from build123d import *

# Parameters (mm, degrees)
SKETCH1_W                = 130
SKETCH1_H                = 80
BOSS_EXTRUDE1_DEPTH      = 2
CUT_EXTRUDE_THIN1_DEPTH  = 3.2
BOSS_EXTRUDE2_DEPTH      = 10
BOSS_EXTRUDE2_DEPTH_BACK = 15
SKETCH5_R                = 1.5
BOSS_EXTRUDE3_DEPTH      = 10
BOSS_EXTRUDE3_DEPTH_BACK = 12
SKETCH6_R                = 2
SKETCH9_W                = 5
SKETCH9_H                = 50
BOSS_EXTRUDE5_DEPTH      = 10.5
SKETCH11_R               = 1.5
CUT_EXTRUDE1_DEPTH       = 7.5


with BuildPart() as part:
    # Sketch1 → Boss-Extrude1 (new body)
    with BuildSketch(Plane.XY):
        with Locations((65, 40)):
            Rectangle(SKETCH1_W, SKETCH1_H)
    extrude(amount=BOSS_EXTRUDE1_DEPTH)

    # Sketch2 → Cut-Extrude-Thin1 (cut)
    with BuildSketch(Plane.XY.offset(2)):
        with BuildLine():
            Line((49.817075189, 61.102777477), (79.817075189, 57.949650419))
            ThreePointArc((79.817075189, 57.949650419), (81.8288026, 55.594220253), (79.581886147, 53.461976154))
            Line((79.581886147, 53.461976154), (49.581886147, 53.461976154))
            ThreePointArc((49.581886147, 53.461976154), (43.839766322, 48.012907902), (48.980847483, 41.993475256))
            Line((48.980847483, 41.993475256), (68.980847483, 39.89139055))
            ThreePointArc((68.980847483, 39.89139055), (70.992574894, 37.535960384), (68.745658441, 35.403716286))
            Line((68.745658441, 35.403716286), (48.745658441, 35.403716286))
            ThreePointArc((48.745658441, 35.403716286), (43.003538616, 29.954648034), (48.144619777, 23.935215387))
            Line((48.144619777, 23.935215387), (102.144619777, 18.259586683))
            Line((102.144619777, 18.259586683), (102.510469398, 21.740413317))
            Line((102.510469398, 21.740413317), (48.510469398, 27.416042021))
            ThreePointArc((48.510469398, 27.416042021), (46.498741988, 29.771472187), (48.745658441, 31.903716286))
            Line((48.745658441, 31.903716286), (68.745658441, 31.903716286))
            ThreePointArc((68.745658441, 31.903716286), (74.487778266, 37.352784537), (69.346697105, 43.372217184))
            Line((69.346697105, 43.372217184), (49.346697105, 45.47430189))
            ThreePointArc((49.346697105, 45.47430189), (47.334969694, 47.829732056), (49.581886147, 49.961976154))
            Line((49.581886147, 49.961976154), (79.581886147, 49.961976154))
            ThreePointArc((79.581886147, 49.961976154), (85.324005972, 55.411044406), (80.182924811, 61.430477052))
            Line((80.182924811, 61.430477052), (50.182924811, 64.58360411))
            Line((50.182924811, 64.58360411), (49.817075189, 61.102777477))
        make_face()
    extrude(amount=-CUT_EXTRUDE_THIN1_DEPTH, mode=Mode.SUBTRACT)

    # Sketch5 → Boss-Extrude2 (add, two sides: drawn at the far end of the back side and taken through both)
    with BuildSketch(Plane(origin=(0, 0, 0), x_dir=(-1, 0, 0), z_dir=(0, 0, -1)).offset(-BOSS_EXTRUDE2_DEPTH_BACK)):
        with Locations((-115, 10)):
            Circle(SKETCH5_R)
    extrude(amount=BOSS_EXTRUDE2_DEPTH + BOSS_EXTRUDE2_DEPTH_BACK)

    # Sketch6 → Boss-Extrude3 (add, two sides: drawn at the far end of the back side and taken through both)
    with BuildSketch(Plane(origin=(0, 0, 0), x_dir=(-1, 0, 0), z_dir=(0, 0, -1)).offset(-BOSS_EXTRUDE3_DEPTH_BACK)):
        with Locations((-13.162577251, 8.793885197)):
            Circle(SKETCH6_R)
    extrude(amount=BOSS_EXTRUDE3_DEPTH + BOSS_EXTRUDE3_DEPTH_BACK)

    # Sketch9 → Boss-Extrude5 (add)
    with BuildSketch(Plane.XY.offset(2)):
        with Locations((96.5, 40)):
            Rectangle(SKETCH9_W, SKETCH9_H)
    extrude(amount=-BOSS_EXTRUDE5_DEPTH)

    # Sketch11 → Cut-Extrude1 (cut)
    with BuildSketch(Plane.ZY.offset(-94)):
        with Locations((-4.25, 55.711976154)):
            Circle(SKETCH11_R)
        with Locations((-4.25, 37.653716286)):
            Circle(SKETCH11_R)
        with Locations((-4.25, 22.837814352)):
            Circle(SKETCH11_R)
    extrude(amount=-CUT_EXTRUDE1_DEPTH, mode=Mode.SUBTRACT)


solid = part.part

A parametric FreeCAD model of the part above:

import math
import FreeCAD as App
import Part
import Sketcher

V = App.Vector
Q = App.Units.Quantity


def add_polygon(sketch, points):
    """Adds a closed chain of lines whose ends are joined by coincident constraints."""
    first, n = sketch.GeometryCount, len(points)
    for a, b in zip(points, points[1:] + points[:1]):
        sketch.addGeometry(Part.LineSegment(App.Vector(*a, 0), App.Vector(*b, 0)), False)
    for i in range(n):
        sketch.addConstraint(Sketcher.Constraint("Coincident", first + i, 2, first + (i + 1) % n, 1))

doc = App.newDocument("Part")
params = doc.addObject("Spreadsheet::Sheet", "Params")
for row, (alias, value) in enumerate([
    ("sketch1_width", "130 mm"),
    ("sketch1_height", "80 mm"),
    ("pad1_length", "2 mm"),
    ("sketch2_width", "30 mm"),
    ("sketch2_width2", "20 mm"),
    ("sketch2_radius", "2.25 mm"),
    ("sketch2_radius2", "5.75 mm"),
    ("pocket1_length", "3.2 mm"),
    ("sketch3_diameter", "3 mm"),
    ("pad2_length", "10 mm"),
    ("pad2_length2", "15 mm"),
    ("sketch4_diameter", "4 mm"),
    ("pad3_length", "10 mm"),
    ("pad3_length2", "12 mm"),
    ("sketch5_width", "5 mm"),
    ("sketch5_height", "50 mm"),
    ("pad4_length", "10.5 mm"),
    ("sketch6_diameter", "3 mm"),
    ("pocket2_length", "7.5 mm"),
], start=1):
    params.set(f"A{row}", alias)
    params.set(f"B{row}", "=" + value)
    params.setAlias(f"B{row}", alias)

body = doc.addObject("PartDesign::Body", "Body")

sketch1 = body.newObject("Sketcher::SketchObject", "Sketch")
sketch1.AttachmentSupport = (doc.getObject("XY_Plane"), [""])
sketch1.MapMode = "FlatFace"
add_polygon(sketch1, [(0, 80), (0, 0), (130, 0), (130, 80)])
sketch1.addConstraint(Sketcher.Constraint("Vertical", 0))
sketch1.addConstraint(Sketcher.Constraint("Horizontal", 1))
sketch1.addConstraint(Sketcher.Constraint("Vertical", 2))
sketch1.addConstraint(Sketcher.Constraint("Horizontal", 3))
sketch1.addConstraint(Sketcher.Constraint("Coincident", 0, 2, -1, 1))
sketch1.addConstraint(Sketcher.Constraint("DistanceX", 1, 1, 1, 2, 130.0))
sketch1.addConstraint(Sketcher.Constraint("DistanceY", 0, 2, 0, 1, 80.0))
sketch1.setExpression("Constraints[9]", "Params.sketch1_width")
sketch1.setExpression("Constraints[10]", "Params.sketch1_height")
pad1 = body.newObject("PartDesign::Pad", "Pad")
pad1.Profile = sketch1
pad1.setExpression("Length", "Params.pad1_length")

sketch2 = body.newObject("Sketcher::SketchObject", "Sketch001")
sketch2.AttachmentSupport = (doc.getObject("XY_Plane"), [""])
sketch2.MapMode = "FlatFace"
sketch2.AttachmentOffset = App.Placement(V(0, 0, 2), App.Rotation())
sketch2.addGeometry(Part.LineSegment(V(49.8, 61.1, 0), V(79.8, 57.9, 0)), False)
sketch2.addGeometry(Part.ArcOfCircle(Part.Circle(V(79.6, 55.7, 0), V(0, 0, 1), 2.2), math.radians(-90), math.radians(84)), False)
sketch2.addGeometry(Part.LineSegment(V(79.6, 53.5, 0), V(49.6, 53.5, 0)), False)
sketch2.addGeometry(Part.ArcOfCircle(Part.Circle(V(49.6, 47.7, 0), V(0, 0, 1), 5.8), math.radians(90), math.radians(264)), False)
sketch2.addGeometry(Part.LineSegment(V(49, 42, 0), V(69, 39.9, 0)), False)
sketch2.addGeometry(Part.ArcOfCircle(Part.Circle(V(68.7, 37.7, 0), V(0, 0, 1), 2.2), math.radians(-90), math.radians(84)), False)
sketch2.addGeometry(Part.LineSegment(V(68.7, 35.4, 0), V(48.7, 35.4, 0)), False)
sketch2.addGeometry(Part.ArcOfCircle(Part.Circle(V(48.7, 29.7, 0), V(0, 0, 1), 5.8), math.radians(90), math.radians(264)), False)
sketch2.addGeometry(Part.LineSegment(V(48.1, 23.9, 0), V(102.1, 18.3, 0)), False)
sketch2.addGeometry(Part.LineSegment(V(102.1, 18.3, 0), V(102.5, 21.7, 0)), False)
sketch2.addGeometry(Part.LineSegment(V(102.5, 21.7, 0), V(48.5, 27.4, 0)), False)
sketch2.addGeometry(Part.ArcOfCircle(Part.Circle(V(48.7, 29.7, 0), V(0, 0, 1), 2.2), math.radians(90), math.radians(264)), False)
sketch2.addGeometry(Part.LineSegment(V(48.7, 31.9, 0), V(68.7, 31.9, 0)), False)
sketch2.addGeometry(Part.ArcOfCircle(Part.Circle(V(68.7, 37.7, 0), V(0, 0, 1), 5.8), math.radians(-90), math.radians(84)), False)
sketch2.addGeometry(Part.LineSegment(V(69.3, 43.4, 0), V(49.3, 45.5, 0)), False)
sketch2.addGeometry(Part.ArcOfCircle(Part.Circle(V(49.6, 47.7, 0), V(0, 0, 1), 2.2), math.radians(90), math.radians(264)), False)
sketch2.addGeometry(Part.LineSegment(V(49.6, 50, 0), V(79.6, 50, 0)), False)
sketch2.addGeometry(Part.ArcOfCircle(Part.Circle(V(79.6, 55.7, 0), V(0, 0, 1), 5.8), math.radians(-90), math.radians(84)), False)
sketch2.addGeometry(Part.LineSegment(V(80.2, 61.4, 0), V(50.2, 64.6, 0)), False)
sketch2.addGeometry(Part.LineSegment(V(50.2, 64.6, 0), V(49.8, 61.1, 0)), False)
sketch2.addConstraint(Sketcher.Constraint("Tangent", 0, 2, 1, 2))
sketch2.addConstraint(Sketcher.Constraint("Tangent", 1, 1, 2, 1))
sketch2.addConstraint(Sketcher.Constraint("Tangent", 2, 2, 3, 1))
sketch2.addConstraint(Sketcher.Constraint("Tangent", 3, 2, 4, 1))
sketch2.addConstraint(Sketcher.Constraint("Tangent", 4, 2, 5, 2))
sketch2.addConstraint(Sketcher.Constraint("Tangent", 5, 1, 6, 1))
sketch2.addConstraint(Sketcher.Constraint("Tangent", 6, 2, 7, 1))
sketch2.addConstraint(Sketcher.Constraint("Tangent", 7, 2, 8, 1))
sketch2.addConstraint(Sketcher.Constraint("Coincident", 8, 2, 9, 1))
sketch2.addConstraint(Sketcher.Constraint("Coincident", 9, 2, 10, 1))
sketch2.addConstraint(Sketcher.Constraint("Tangent", 10, 2, 11, 2))
sketch2.addConstraint(Sketcher.Constraint("Tangent", 11, 1, 12, 1))
sketch2.addConstraint(Sketcher.Constraint("Tangent", 12, 2, 13, 1))
sketch2.addConstraint(Sketcher.Constraint("Tangent", 13, 2, 14, 1))
sketch2.addConstraint(Sketcher.Constraint("Tangent", 14, 2, 15, 2))
sketch2.addConstraint(Sketcher.Constraint("Tangent", 15, 1, 16, 1))
sketch2.addConstraint(Sketcher.Constraint("Tangent", 16, 2, 17, 1))
sketch2.addConstraint(Sketcher.Constraint("Tangent", 17, 2, 18, 1))
sketch2.addConstraint(Sketcher.Constraint("Coincident", 18, 2, 19, 1))
sketch2.addConstraint(Sketcher.Constraint("Coincident", 19, 2, 0, 1))
sketch2.addConstraint(Sketcher.Constraint("Horizontal", 2))
sketch2.addConstraint(Sketcher.Constraint("Horizontal", 6))
sketch2.addConstraint(Sketcher.Constraint("Horizontal", 12))
sketch2.addConstraint(Sketcher.Constraint("Horizontal", 16))
sketch2.addConstraint(Sketcher.Constraint("Coincident", 11, 3, 7, 3))
sketch2.addConstraint(Sketcher.Constraint("Coincident", 13, 3, 5, 3))
sketch2.addConstraint(Sketcher.Constraint("Coincident", 15, 3, 3, 3))
sketch2.addConstraint(Sketcher.Constraint("Coincident", 17, 3, 1, 3))
sketch2.addConstraint(Sketcher.Constraint("Equal", 1, 5))
sketch2.addConstraint(Sketcher.Constraint("Equal", 3, 7))
sketch2.addConstraint(Sketcher.Constraint("Equal", 5, 11))
sketch2.addConstraint(Sketcher.Constraint("Equal", 11, 15))
sketch2.addConstraint(Sketcher.Constraint("Parallel", 0, 4))
sketch2.addConstraint(Sketcher.Constraint("Parallel", 4, 8))
sketch2.addConstraint(Sketcher.Constraint("Perpendicular", 8, 9))
sketch2.addConstraint(Sketcher.Constraint("Perpendicular", 9, 10))
sketch2.addConstraint(Sketcher.Constraint("Parallel", 14, 18))
sketch2.addConstraint(Sketcher.Constraint("Perpendicular", 18, 19))
sketch2.addConstraint(Sketcher.Constraint("DistanceX", 2, 2, 2, 1, 30.0))
sketch2.addConstraint(Sketcher.Constraint("DistanceX", 6, 2, 6, 1, 20.0))
sketch2.addConstraint(Sketcher.Constraint("Angle", 0, Q("-6 deg")))
sketch2.addConstraint(Sketcher.Constraint("Radius", 1, 2.25))
sketch2.addConstraint(Sketcher.Constraint("Radius", 3, 5.75))
sketch2.addConstraint(Sketcher.Constraint("DistanceY", -1, 1, 14, 2, 45.474302))
sketch2.addConstraint(Sketcher.Constraint("DistanceY", 2, 2, 19, 2, 7.640801))
sketch2.addConstraint(Sketcher.Constraint("DistanceX", -1, 1, 5, 3, 68.745658))
sketch2.addConstraint(Sketcher.Constraint("DistanceY", -1, 1, 4, 2, 39.891391))
sketch2.addConstraint(Sketcher.Constraint("DistanceX", -1, 1, 8, 2, 102.14462))
sketch2.setExpression("Constraints[38]", "Params.sketch2_width")
sketch2.setExpression("Constraints[39]", "Params.sketch2_width2")
sketch2.setExpression("Constraints[41]", "Params.sketch2_radius")
sketch2.setExpression("Constraints[42]", "Params.sketch2_radius2")
pocket1 = body.newObject("PartDesign::Pocket", "Pocket")
pocket1.Profile = sketch2
pocket1.setExpression("Length", "Params.pocket1_length")

sketch3 = body.newObject("Sketcher::SketchObject", "Sketch002")
sketch3.AttachmentSupport = (doc.getObject("XY_Plane"), [""])
sketch3.MapMode = "FlatFace"
sketch3.addGeometry(Part.Circle(V(115, 10, 0), V(0, 0, 1), 1.5), False)
sketch3.addConstraint(Sketcher.Constraint("Diameter", 0, 3.0))
sketch3.addConstraint(Sketcher.Constraint("DistanceX", -1, 1, 0, 3, 115.0))
sketch3.addConstraint(Sketcher.Constraint("DistanceY", -1, 1, 0, 3, 10.0))
sketch3.setExpression("Constraints[0]", "Params.sketch3_diameter")
pad2 = body.newObject("PartDesign::Pad", "Pad001")
pad2.Profile = sketch3
pad2.Type = "TwoLengths"
pad2.setExpression("Length", "Params.pad2_length")
pad2.setExpression("Length2", "Params.pad2_length2")
pad2.Reversed = True

sketch4 = body.newObject("Sketcher::SketchObject", "Sketch003")
sketch4.AttachmentSupport = (doc.getObject("XY_Plane"), [""])
sketch4.MapMode = "FlatFace"
sketch4.addGeometry(Part.Circle(V(13.2, 8.8, 0), V(0, 0, 1), 2), False)
sketch4.addConstraint(Sketcher.Constraint("Diameter", 0, 4.0))
sketch4.addConstraint(Sketcher.Constraint("DistanceX", -1, 1, 0, 3, 13.162577))
sketch4.addConstraint(Sketcher.Constraint("DistanceY", -1, 1, 0, 3, 8.793885))
sketch4.setExpression("Constraints[0]", "Params.sketch4_diameter")
pad3 = body.newObject("PartDesign::Pad", "Pad002")
pad3.Profile = sketch4
pad3.Type = "TwoLengths"
pad3.setExpression("Length", "Params.pad3_length")
pad3.setExpression("Length2", "Params.pad3_length2")
pad3.Reversed = True

sketch5 = body.newObject("Sketcher::SketchObject", "Sketch004")
sketch5.AttachmentSupport = (doc.getObject("XY_Plane"), [""])
sketch5.MapMode = "FlatFace"
sketch5.AttachmentOffset = App.Placement(V(0, 0, 2), App.Rotation())
add_polygon(sketch5, [(94, 65), (94, 15), (99, 15), (99, 65)])
sketch5.addConstraint(Sketcher.Constraint("Vertical", 0))
sketch5.addConstraint(Sketcher.Constraint("Horizontal", 1))
sketch5.addConstraint(Sketcher.Constraint("Vertical", 2))
sketch5.addConstraint(Sketcher.Constraint("Horizontal", 3))
sketch5.addConstraint(Sketcher.Constraint("DistanceX", 1, 1, 1, 2, 5.0))
sketch5.addConstraint(Sketcher.Constraint("DistanceY", 0, 2, 0, 1, 50.0))
sketch5.addConstraint(Sketcher.Constraint("DistanceX", -1, 1, 0, 2, 94.0))
sketch5.addConstraint(Sketcher.Constraint("DistanceY", -1, 1, 0, 2, 15.0))
sketch5.setExpression("Constraints[8]", "Params.sketch5_width")
sketch5.setExpression("Constraints[9]", "Params.sketch5_height")
pad4 = body.newObject("PartDesign::Pad", "Pad003")
pad4.Profile = sketch5
pad4.setExpression("Length", "Params.pad4_length")
pad4.Reversed = True

sketch6 = body.newObject("Sketcher::SketchObject", "Sketch005")
sketch6.AttachmentSupport = (doc.getObject("YZ_Plane"), [""])
sketch6.MapMode = "FlatFace"
sketch6.AttachmentOffset = App.Placement(V(0, 0, 94), App.Rotation())
sketch6.addGeometry(Part.Circle(V(55.7, -4.2, 0), V(0, 0, 1), 1.5), False)
sketch6.addGeometry(Part.Circle(V(37.7, -4.2, 0), V(0, 0, 1), 1.5), False)
sketch6.addGeometry(Part.Circle(V(22.8, -4.2, 0), V(0, 0, 1), 1.5), False)
sketch6.addConstraint(Sketcher.Constraint("Equal", 0, 1))
sketch6.addConstraint(Sketcher.Constraint("Equal", 1, 2))
sketch6.addConstraint(Sketcher.Constraint("Horizontal", 0, 3, 1, 3))
sketch6.addConstraint(Sketcher.Constraint("Horizontal", 1, 3, 2, 3))
sketch6.addConstraint(Sketcher.Constraint("Diameter", 0, 3.0))
sketch6.addConstraint(Sketcher.Constraint("DistanceY", 0, 3, -1, 1, 4.25))
sketch6.addConstraint(Sketcher.Constraint("DistanceX", 2, 3, 1, 3, 14.815902))
sketch6.addConstraint(Sketcher.Constraint("DistanceX", 1, 3, 0, 3, 18.05826))
sketch6.addConstraint(Sketcher.Constraint("DistanceX", -1, 1, 0, 3, 55.711976))
sketch6.setExpression("Constraints[4]", "Params.sketch6_diameter")
pocket2 = body.newObject("PartDesign::Pocket", "Pocket001")
pocket2.Profile = sketch6
pocket2.setExpression("Length", "Params.pocket2_length")
pocket2.Reversed = True

doc.recompute()
